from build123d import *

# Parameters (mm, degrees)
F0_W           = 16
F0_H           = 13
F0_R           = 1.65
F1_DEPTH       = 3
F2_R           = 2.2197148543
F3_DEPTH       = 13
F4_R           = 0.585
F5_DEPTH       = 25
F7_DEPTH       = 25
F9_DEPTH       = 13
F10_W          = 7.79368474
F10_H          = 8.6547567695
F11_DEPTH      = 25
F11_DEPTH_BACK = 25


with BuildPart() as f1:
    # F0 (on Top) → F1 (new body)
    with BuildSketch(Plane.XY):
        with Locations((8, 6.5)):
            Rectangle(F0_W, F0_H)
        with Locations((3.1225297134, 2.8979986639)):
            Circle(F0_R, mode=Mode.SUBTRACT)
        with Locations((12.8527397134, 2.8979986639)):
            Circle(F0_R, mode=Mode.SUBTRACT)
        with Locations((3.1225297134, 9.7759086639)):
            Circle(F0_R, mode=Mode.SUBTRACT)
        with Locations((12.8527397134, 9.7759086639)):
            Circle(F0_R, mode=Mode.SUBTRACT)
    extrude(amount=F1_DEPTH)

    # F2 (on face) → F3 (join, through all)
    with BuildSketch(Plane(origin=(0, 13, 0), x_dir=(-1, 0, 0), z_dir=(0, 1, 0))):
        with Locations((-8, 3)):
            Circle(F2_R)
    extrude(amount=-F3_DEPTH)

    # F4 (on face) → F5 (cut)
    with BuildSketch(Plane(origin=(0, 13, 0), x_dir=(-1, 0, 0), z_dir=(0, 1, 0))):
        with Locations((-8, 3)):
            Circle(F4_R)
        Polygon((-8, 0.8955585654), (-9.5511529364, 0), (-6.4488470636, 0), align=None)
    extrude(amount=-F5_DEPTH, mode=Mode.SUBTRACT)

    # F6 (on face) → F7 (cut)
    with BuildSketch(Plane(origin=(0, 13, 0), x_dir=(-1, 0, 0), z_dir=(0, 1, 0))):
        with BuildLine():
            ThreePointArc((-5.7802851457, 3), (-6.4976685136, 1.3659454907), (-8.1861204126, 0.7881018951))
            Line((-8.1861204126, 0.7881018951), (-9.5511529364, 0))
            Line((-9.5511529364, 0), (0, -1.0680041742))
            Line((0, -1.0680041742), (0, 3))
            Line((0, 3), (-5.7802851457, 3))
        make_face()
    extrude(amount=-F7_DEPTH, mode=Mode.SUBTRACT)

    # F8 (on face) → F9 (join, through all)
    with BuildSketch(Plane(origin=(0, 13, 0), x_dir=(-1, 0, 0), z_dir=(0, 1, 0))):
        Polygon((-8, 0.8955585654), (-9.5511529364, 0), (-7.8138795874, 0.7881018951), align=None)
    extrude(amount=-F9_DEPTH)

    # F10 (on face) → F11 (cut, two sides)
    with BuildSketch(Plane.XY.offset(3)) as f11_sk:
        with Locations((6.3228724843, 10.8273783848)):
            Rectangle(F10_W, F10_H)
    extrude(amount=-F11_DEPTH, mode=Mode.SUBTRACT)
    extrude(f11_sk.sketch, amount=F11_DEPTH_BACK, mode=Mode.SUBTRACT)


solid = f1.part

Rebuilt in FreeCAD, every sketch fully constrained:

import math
import FreeCAD as App
import Part
import Sketcher

V = App.Vector
Q = App.Units.Quantity

doc = App.newDocument("Part")
body = doc.addObject("PartDesign::Body", "Body")

sketch1 = body.newObject("Sketcher::SketchObject", "Sketch")
sketch1.AttachmentSupport = (doc.getObject("XY_Plane"), [""])
sketch1.MapMode = "FlatFace"
sketch1.addGeometry([
    Part.LineSegment(V(0, 13, 0), V(0, 0, 0)),
    Part.LineSegment(V(0, 0, 0), V(16, 0, 0)),
    Part.LineSegment(V(16, 0, 0), V(16, 13, 0)),
    Part.LineSegment(V(16, 13, 0), V(0, 13, 0)),
    Part.Circle(V(3.1, 2.9, 0), V(0, 0, 1), 1.6),
    Part.Circle(V(12.9, 2.9, 0), V(0, 0, 1), 1.6),
    Part.Circle(V(3.1, 9.8, 0), V(0, 0, 1), 1.6),
    Part.Circle(V(12.9, 9.8, 0), V(0, 0, 1), 1.6),
], False)
sketch1.addConstraint([
    Sketcher.Constraint("Coincident", 0, 2, 1, 1),
    Sketcher.Constraint("Coincident", 1, 2, 2, 1),
    Sketcher.Constraint("Coincident", 2, 2, 3, 1),
    Sketcher.Constraint("Coincident", 3, 2, 0, 1),
    Sketcher.Constraint("Vertical", 0),
    Sketcher.Constraint("Horizontal", 1),
    Sketcher.Constraint("Vertical", 2),
    Sketcher.Constraint("Horizontal", 3),
    Sketcher.Constraint("Coincident", 0, 2, -1, 1),
    Sketcher.Constraint("Equal", 4, 5),
    Sketcher.Constraint("Equal", 5, 6),
    Sketcher.Constraint("Equal", 6, 7),
    Sketcher.Constraint("Horizontal", 4, 3, 5, 3),
    Sketcher.Constraint("Horizontal", 6, 3, 7, 3),
    Sketcher.Constraint("Vertical", 4, 3, 6, 3),
    Sketcher.Constraint("Vertical", 5, 3, 7, 3),
    Sketcher.Constraint("Diameter", 4, 3.3),
    Sketcher.Constraint("DistanceX", 1, 1, 1, 2, 16.0),
    Sketcher.Constraint("DistanceY", 0, 2, 0, 1, 13.0),
    Sketcher.Constraint("DistanceY", -1, 1, 4, 3, 2.897999),
    Sketcher.Constraint("DistanceX", -1, 1, 4, 3, 3.12253),
    Sketcher.Constraint("DistanceX", -1, 1, 5, 3, 12.85274),
    Sketcher.Constraint("DistanceY", -1, 1, 6, 3, 9.775909),
])
pad1 = body.newObject("PartDesign::Pad", "Pad")
pad1.Profile = sketch1
pad1.Length = 3

sketch2 = body.newObject("Sketcher::SketchObject", "Sketch001")
sketch2.AttachmentSupport = (doc.getObject("XZ_Plane"), [""])
sketch2.MapMode = "FlatFace"
sketch2.AttachmentOffset = App.Placement(V(0, 0, -13), App.Rotation())
sketch2.addGeometry(Part.Circle(V(8, 3, 0), V(0, 0, 1), 2.2), False)
sketch2.addConstraint([
    Sketcher.Constraint("DistanceX", -1, 1, 0, 3, 8.0),
    Sketcher.Constraint("DistanceY", -1, 1, 0, 3, 3.0),
    Sketcher.Constraint("Diameter", 0, 4.43943),
])
pad2 = body.newObject("PartDesign::Pad", "Pad001")
pad2.Profile = sketch2
pad2.Type = "UpToLast"

sketch3 = body.newObject("Sketcher::SketchObject", "Sketch002")
sketch3.AttachmentSupport = (doc.getObject("XZ_Plane"), [""])
sketch3.MapMode = "FlatFace"
sketch3.AttachmentOffset = App.Placement(V(0, 0, -13), App.Rotation())
sketch3.addGeometry([
    Part.Circle(V(8, 3, 0), V(0, 0, 1), 0.6),
    Part.LineSegment(V(8, 0.9, 0), V(9.6, 0, 0)),
    Part.LineSegment(V(9.6, 0, 0), V(6.4, 0, 0)),
    Part.LineSegment(V(6.4, 0, 0), V(8, 0.9, 0)),
], False)
sketch3.addConstraint([
    Sketcher.Constraint("Coincident", 1, 2, 2, 1),
    Sketcher.Constraint("Coincident", 2, 2, 3, 1),
    Sketcher.Constraint("Coincident", 3, 2, 1, 1),
    Sketcher.Constraint("Horizontal", 2),
    Sketcher.Constraint("PointOnObject", 1, 2, -1),
    Sketcher.Constraint("Vertical", 0, 3, 3, 2),
    Sketcher.Constraint("Equal", 1, 3),
    Sketcher.Constraint("Diameter", 0, 1.17),
    Sketcher.Constraint("Angle", 1, Q("-30 deg")),
    Sketcher.Constraint("DistanceX", -1, 1, 0, 3, 8.0),
    Sketcher.Constraint("DistanceY", -1, 1, 0, 3, 3.0),
    Sketcher.Constraint("DistanceX", 2, 2, 2, 1, 3.102306),
])
pocket1 = body.newObject("PartDesign::Pocket", "Pocket")
pocket1.Profile = sketch3
pocket1.Length = 25
pocket1.Reversed = True

sketch4 = body.newObject("Sketcher::SketchObject", "Sketch003")
sketch4.AttachmentSupport = (doc.getObject("XZ_Plane"), [""])
sketch4.MapMode = "FlatFace"
sketch4.AttachmentOffset = App.Placement(V(0, 0, -13), App.Rotation())
sketch4.addGeometry([
    Part.ArcOfCircle(Part.Circle(V(8, 3, 0), V(0, 0, 1), 2.219715), math.radians(180), math.radians(274.809829)),
    Part.LineSegment(V(8.18612, 0.788102, 0), V(9.551153, 0, 0)),
    Part.LineSegment(V(9.551153, 0, 0), V(0, -1.068004, 0)),
    Part.LineSegment(V(0, -1.068004, 0), V(0, 3, 0)),
    Part.LineSegment(V(0, 3, 0), V(5.780285, 3, 0)),
], False)
sketch4.addConstraint([
    Sketcher.Constraint("Coincident", 0, 2, 1, 1),
    Sketcher.Constraint("Coincident", 1, 2, 2, 1),
    Sketcher.Constraint("Coincident", 2, 2, 3, 1),
    Sketcher.Constraint("Coincident", 3, 2, 4, 1),
    Sketcher.Constraint("Coincident", 4, 2, 0, 1),
    Sketcher.Constraint("Vertical", 3),
    Sketcher.Constraint("Horizontal", 4),
    Sketcher.Constraint("PointOnObject", 1, 2, -1),
    Sketcher.Constraint("PointOnObject", 2, 2, -2),
    Sketcher.Constraint("DistanceX", -1, 1, 0, 3, 8.0),
    Sketcher.Constraint("DistanceY", -1, 1, 0, 3, 3.0),
    Sketcher.Constraint("DistanceY", -1, 1, 3, 2, 3.0),
    Sketcher.Constraint("Radius", 0, 2.219715),
    Sketcher.Constraint("DistanceY", -1, 1, 0, 2, 0.788102),
    Sketcher.Constraint("Distance", 2, 9.610679),
    Sketcher.Constraint("DistanceY", 3, 1, 3, 2, 4.068004),
])
pocket2 = body.newObject("PartDesign::Pocket", "Pocket001")
pocket2.Profile = sketch4
pocket2.Length = 25
pocket2.Reversed = True

sketch5 = body.newObject("Sketcher::SketchObject", "Sketch004")
sketch5.AttachmentSupport = (doc.getObject("XZ_Plane"), [""])
sketch5.MapMode = "FlatFace"
sketch5.AttachmentOffset = App.Placement(V(0, 0, -13), App.Rotation())
sketch5.addGeometry([
    Part.LineSegment(V(8, 0.9, 0), V(9.55, 0, 0)),
    Part.LineSegment(V(9.55, 0, 0), V(7.81, 0.79, 0)),
    Part.LineSegment(V(7.81, 0.79, 0), V(8, 0.9, 0)),
], False)
sketch5.addConstraint([
    Sketcher.Constraint("Coincident", 0, 2, 1, 1),
    Sketcher.Constraint("Coincident", 1, 2, 2, 1),
    Sketcher.Constraint("Coincident", 2, 2, 0, 1),
    Sketcher.Constraint("PointOnObject", 0, 2, -1),
    Sketcher.Constraint("Angle", 0, Q("-30 deg")),
    Sketcher.Constraint("Angle", 2, Q("30 deg")),
    Sketcher.Constraint("DistanceX", -1, 1, 2, 2, 8.0),
    Sketcher.Constraint("DistanceY", -1, 1, 1, 2, 0.788102),
    Sketcher.Constraint("DistanceX", -1, 1, 1, 2, 7.81388),
])
pad3 = body.newObject("PartDesign::Pad", "Pad002")
pad3.Profile = sketch5
pad3.Length = 13

sketch6 = body.newObject("Sketcher::SketchObject", "Sketch005")
sketch6.AttachmentSupport = (doc.getObject("XY_Plane"), [""])
sketch6.MapMode = "FlatFace"
sketch6.AttachmentOffset = App.Placement(V(0, 0, 3), App.Rotation())
sketch6.addGeometry([
    Part.LineSegment(V(2, 15, 0), V(2, 6, 0)),
    Part.LineSegment(V(2, 6, 0), V(10, 6, 0)),
    Part.LineSegment(V(10, 6, 0), V(10, 15, 0)),
    Part.LineSegment(V(10, 15, 0), V(2, 15, 0)),
], False)
sketch6.addConstraint([
    Sketcher.Constraint("Coincident", 0, 2, 1, 1),
    Sketcher.Constraint("Coincident", 1, 2, 2, 1),
    Sketcher.Constraint("Coincident", 2, 2, 3, 1),
    Sketcher.Constraint("Coincident", 3, 2, 0, 1),
    Sketcher.Constraint("Vertical", 0),
    Sketcher.Constraint("Horizontal", 1),
    Sketcher.Constraint("Vertical", 2),
    Sketcher.Constraint("Horizontal", 3),
    Sketcher.Constraint("DistanceY", -1, 1, 0, 2, 6.5),
    Sketcher.Constraint("DistanceX", 1, 1, 1, 2, 7.793685),
    Sketcher.Constraint("DistanceY", 0, 2, 0, 1, 8.654757),
    Sketcher.Constraint("DistanceX", -1, 1, 0, 2, 2.42603),
])
pocket3 = body.newObject("PartDesign::Pocket", "Pocket002")
pocket3.Profile = sketch6
pocket3.Type = "ThroughAll"
pocket3.Midplane = True

doc.recompute()
